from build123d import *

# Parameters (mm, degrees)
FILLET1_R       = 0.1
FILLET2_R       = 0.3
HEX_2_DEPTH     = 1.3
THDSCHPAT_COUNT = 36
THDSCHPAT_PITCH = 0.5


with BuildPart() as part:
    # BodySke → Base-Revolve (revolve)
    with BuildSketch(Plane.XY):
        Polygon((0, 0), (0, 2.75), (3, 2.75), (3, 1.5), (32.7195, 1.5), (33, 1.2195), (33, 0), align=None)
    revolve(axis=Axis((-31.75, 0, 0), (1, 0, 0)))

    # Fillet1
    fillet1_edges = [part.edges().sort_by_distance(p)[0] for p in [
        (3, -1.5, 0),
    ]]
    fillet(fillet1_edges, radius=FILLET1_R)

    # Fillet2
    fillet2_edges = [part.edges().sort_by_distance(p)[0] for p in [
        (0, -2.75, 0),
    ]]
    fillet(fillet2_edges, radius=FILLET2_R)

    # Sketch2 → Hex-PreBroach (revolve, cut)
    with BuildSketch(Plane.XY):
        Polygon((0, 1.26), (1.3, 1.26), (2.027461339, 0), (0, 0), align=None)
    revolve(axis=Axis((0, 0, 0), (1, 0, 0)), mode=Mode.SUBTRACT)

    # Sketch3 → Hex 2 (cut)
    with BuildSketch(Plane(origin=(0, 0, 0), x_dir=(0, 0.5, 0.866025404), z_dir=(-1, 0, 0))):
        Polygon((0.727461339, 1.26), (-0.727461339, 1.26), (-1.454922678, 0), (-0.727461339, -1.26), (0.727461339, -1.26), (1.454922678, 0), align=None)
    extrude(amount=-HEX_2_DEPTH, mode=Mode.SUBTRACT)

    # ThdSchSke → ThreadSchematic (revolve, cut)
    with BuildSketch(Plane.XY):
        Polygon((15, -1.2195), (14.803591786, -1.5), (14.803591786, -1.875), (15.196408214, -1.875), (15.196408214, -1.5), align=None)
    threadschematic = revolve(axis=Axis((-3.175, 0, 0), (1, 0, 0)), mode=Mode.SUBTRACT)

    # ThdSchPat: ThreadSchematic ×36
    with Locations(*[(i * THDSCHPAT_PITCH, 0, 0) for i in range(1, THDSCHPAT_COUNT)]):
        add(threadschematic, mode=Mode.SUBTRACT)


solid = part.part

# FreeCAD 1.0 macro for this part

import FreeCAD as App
import Part
import Sketcher
Q = App.Units.Quantity


def edges_at(feature, points):
    """Names of the edges that pass closest to the given points."""
    edges = feature.Shape.Edges
    near = lambda p: min(range(len(edges)), key=lambda i: edges[i].distToShape(Part.Vertex(*p))[0])
    return sorted({f"Edge{near(p) + 1}" for p in points})


def add_polygon(sketch, points):
    """Adds a closed chain of lines whose ends are joined by coincident constraints."""
    first, n = sketch.GeometryCount, len(points)
    for a, b in zip(points, points[1:] + points[:1]):
        sketch.addGeometry(Part.LineSegment(App.Vector(*a, 0), App.Vector(*b, 0)), False)
    for i in range(n):
        sketch.addConstraint(Sketcher.Constraint("Coincident", first + i, 2, first + (i + 1) % n, 1))

doc = App.newDocument("Part")
body = doc.addObject("PartDesign::Body", "Body")

# Sketch on XY plane
sketch1 = body.newObject("Sketcher::SketchObject", "Sketch")
sketch1.AttachmentSupport = (doc.getObject("XY_Plane"), [""])
sketch1.MapMode = "FlatFace"
add_polygon(sketch1, [(0, 2.75), (0, 0), (33, 0), (33, 1.22), (32.72, 1.5), (3, 1.5), (3, 2.75)])  # lines 0-6
sketch1.addConstraint(Sketcher.Constraint("Vertical", 0))
sketch1.addConstraint(Sketcher.Constraint("Horizontal", 1))
sketch1.addConstraint(Sketcher.Constraint("Vertical", 2))
sketch1.addConstraint(Sketcher.Constraint("Horizontal", 4))
sketch1.addConstraint(Sketcher.Constraint("Vertical", 5))
sketch1.addConstraint(Sketcher.Constraint("Horizontal", 6))
sketch1.addConstraint(Sketcher.Constraint("Coincident", 0, 2, -1, 1))
sketch1.addConstraint(Sketcher.Constraint("DistanceX", 1, 1, 1, 2, 33.0))
sketch1.addConstraint(Sketcher.Constraint("DistanceX", 6, 2, 6, 1, 3.0))
sketch1.addConstraint(Sketcher.Constraint("Angle", 3, Q("135 deg")))
sketch1.addConstraint(Sketcher.Constraint("DistanceY", 0, 2, 0, 1, 2.75))
sketch1.addConstraint(Sketcher.Constraint("DistanceY", 5, 1, 5, 2, 1.25))
sketch1.addConstraint(Sketcher.Constraint("DistanceX", 4, 2, 4, 1, 29.7195))
revolution = body.newObject("PartDesign::Revolution", "Revolution")
revolution.Profile = sketch1
revolution.ReferenceAxis = (sketch1, ["H_Axis"])
revolution.Angle = 360
doc.recompute()

fillet = body.newObject("PartDesign::Fillet", "Fillet")
fillet.Base = (revolution, edges_at(revolution, [(3, -1.5, 0)]))
fillet.Radius = 0.1
doc.recompute()

fillet2 = body.newObject("PartDesign::Fillet", "Fillet001")
fillet2.Base = (fillet, edges_at(fillet, [(0, -2.75, 0)]))
fillet2.Radius = 0.3

# Sketch on XY plane
sketch2 = body.newObject("Sketcher::SketchObject", "Sketch001")
sketch2.AttachmentSupport = (doc.getObject("XY_Plane"), [""])
sketch2.MapMode = "FlatFace"
add_polygon(sketch2, [(1.3, 1.3), (0, 1.3), (0, 0), (2, 0)])  # lines 0-3
sketch2.addConstraint(Sketcher.Constraint("Horizontal", 0))
sketch2.addConstraint(Sketcher.Constraint("Vertical", 1))
sketch2.addConstraint(Sketcher.Constraint("Horizontal", 2))
sketch2.addConstraint(Sketcher.Constraint("Coincident", 1, 2, -1, 1))
sketch2.addConstraint(Sketcher.Constraint("Angle", 3, Q("120 deg")))
sketch2.addConstraint(Sketcher.Constraint("DistanceX", 0, 2, 0, 1, 1.3))
sketch2.addConstraint(Sketcher.Constraint("DistanceY", 1, 2, 1, 1, 1.26))
groove = body.newObject("PartDesign::Groove", "Groove")
groove.Profile = sketch2
groove.ReferenceAxis = (sketch2, ["H_Axis"])
groove.Angle = 360

# Sketch on YZ plane
sketch3 = body.newObject("Sketcher::SketchObject", "Sketch002")
sketch3.AttachmentSupport = (doc.getObject("YZ_Plane"), [""])
sketch3.MapMode = "FlatFace"
add_polygon(sketch3, [(1.5, 0), (0.7, -1.3), (-0.7, -1.3), (-1.5, 0), (-0.7, 1.3), (0.7, 1.3)])  # lines 0-5
sketch3.addConstraint(Sketcher.Constraint("Horizontal", 1))
sketch3.addConstraint(Sketcher.Constraint("Horizontal", 4))
sketch3.addConstraint(Sketcher.Constraint("Symmetric", 0, 2, 3, 2, -1, 1))
sketch3.addConstraint(Sketcher.Constraint("Symmetric", 2, 2, 5, 2, -1, 1))
sketch3.addConstraint(Sketcher.Constraint("PointOnObject", 2, 2, -1))
sketch3.addConstraint(Sketcher.Constraint("Parallel", 2, 5))
sketch3.addConstraint(Sketcher.Constraint("Vertical", 1, 2, 3, 2))
sketch3.addConstraint(Sketcher.Constraint("Angle", 0, Q("-120 deg")))
sketch3.addConstraint(Sketcher.Constraint("DistanceY", 0, 2, -1, 1, 1.26))
sketch3.addConstraint(Sketcher.Constraint("DistanceX", 1, 2, 1, 1, 1.454923))
pocket1 = body.newObject("PartDesign::Pocket", "Pocket")
pocket1.Profile = sketch3
pocket1.Length = 1.3
pocket1.Reversed = True

# Sketch on XY plane
sketch4 = body.newObject("Sketcher::SketchObject", "Sketch003")
sketch4.AttachmentSupport = (doc.getObject("XY_Plane"), [""])
sketch4.MapMode = "FlatFace"
add_polygon(sketch4, [(15, -1.22), (14.8, -1.5), (14.8, -1.88), (15.2, -1.88), (15.2, -1.5)])  # lines 0-4
sketch4.addConstraint(Sketcher.Constraint("Vertical", 1))
sketch4.addConstraint(Sketcher.Constraint("Horizontal", 2))
sketch4.addConstraint(Sketcher.Constraint("Vertical", 3))
sketch4.addConstraint(Sketcher.Constraint("Horizontal", 0, 2, 3, 2))
sketch4.addConstraint(Sketcher.Constraint("Equal", 0, 4))
sketch4.addConstraint(Sketcher.Constraint("Angle", 0, Q("-125 deg")))
sketch4.addConstraint(Sketcher.Constraint("DistanceX", -1, 1, 4, 2, 15.0))
sketch4.addConstraint(Sketcher.Constraint("DistanceY", 0, 2, -1, 1, 1.5))
sketch4.addConstraint(Sketcher.Constraint("DistanceY", 1, 2, 1, 1, 0.375))
sketch4.addConstraint(Sketcher.Constraint("DistanceY", 4, 2, -1, 1, 1.2195))
groove2 = body.newObject("PartDesign::Groove", "Groove001")
groove2.Profile = sketch4
groove2.ReferenceAxis = (sketch4, ["H_Axis"])
groove2.Angle = 360
doc.recompute()

linearpattern = body.newObject("PartDesign::LinearPattern", "LinearPattern")
linearpattern.Originals = [groove2]
linearpattern.Direction = (doc.getObject("X_Axis"), [""])
linearpattern.Mode = "offset"
linearpattern.Offset = 0.5
linearpattern.Occurrences = 36
body.Tip = linearpattern

doc.recompute()
